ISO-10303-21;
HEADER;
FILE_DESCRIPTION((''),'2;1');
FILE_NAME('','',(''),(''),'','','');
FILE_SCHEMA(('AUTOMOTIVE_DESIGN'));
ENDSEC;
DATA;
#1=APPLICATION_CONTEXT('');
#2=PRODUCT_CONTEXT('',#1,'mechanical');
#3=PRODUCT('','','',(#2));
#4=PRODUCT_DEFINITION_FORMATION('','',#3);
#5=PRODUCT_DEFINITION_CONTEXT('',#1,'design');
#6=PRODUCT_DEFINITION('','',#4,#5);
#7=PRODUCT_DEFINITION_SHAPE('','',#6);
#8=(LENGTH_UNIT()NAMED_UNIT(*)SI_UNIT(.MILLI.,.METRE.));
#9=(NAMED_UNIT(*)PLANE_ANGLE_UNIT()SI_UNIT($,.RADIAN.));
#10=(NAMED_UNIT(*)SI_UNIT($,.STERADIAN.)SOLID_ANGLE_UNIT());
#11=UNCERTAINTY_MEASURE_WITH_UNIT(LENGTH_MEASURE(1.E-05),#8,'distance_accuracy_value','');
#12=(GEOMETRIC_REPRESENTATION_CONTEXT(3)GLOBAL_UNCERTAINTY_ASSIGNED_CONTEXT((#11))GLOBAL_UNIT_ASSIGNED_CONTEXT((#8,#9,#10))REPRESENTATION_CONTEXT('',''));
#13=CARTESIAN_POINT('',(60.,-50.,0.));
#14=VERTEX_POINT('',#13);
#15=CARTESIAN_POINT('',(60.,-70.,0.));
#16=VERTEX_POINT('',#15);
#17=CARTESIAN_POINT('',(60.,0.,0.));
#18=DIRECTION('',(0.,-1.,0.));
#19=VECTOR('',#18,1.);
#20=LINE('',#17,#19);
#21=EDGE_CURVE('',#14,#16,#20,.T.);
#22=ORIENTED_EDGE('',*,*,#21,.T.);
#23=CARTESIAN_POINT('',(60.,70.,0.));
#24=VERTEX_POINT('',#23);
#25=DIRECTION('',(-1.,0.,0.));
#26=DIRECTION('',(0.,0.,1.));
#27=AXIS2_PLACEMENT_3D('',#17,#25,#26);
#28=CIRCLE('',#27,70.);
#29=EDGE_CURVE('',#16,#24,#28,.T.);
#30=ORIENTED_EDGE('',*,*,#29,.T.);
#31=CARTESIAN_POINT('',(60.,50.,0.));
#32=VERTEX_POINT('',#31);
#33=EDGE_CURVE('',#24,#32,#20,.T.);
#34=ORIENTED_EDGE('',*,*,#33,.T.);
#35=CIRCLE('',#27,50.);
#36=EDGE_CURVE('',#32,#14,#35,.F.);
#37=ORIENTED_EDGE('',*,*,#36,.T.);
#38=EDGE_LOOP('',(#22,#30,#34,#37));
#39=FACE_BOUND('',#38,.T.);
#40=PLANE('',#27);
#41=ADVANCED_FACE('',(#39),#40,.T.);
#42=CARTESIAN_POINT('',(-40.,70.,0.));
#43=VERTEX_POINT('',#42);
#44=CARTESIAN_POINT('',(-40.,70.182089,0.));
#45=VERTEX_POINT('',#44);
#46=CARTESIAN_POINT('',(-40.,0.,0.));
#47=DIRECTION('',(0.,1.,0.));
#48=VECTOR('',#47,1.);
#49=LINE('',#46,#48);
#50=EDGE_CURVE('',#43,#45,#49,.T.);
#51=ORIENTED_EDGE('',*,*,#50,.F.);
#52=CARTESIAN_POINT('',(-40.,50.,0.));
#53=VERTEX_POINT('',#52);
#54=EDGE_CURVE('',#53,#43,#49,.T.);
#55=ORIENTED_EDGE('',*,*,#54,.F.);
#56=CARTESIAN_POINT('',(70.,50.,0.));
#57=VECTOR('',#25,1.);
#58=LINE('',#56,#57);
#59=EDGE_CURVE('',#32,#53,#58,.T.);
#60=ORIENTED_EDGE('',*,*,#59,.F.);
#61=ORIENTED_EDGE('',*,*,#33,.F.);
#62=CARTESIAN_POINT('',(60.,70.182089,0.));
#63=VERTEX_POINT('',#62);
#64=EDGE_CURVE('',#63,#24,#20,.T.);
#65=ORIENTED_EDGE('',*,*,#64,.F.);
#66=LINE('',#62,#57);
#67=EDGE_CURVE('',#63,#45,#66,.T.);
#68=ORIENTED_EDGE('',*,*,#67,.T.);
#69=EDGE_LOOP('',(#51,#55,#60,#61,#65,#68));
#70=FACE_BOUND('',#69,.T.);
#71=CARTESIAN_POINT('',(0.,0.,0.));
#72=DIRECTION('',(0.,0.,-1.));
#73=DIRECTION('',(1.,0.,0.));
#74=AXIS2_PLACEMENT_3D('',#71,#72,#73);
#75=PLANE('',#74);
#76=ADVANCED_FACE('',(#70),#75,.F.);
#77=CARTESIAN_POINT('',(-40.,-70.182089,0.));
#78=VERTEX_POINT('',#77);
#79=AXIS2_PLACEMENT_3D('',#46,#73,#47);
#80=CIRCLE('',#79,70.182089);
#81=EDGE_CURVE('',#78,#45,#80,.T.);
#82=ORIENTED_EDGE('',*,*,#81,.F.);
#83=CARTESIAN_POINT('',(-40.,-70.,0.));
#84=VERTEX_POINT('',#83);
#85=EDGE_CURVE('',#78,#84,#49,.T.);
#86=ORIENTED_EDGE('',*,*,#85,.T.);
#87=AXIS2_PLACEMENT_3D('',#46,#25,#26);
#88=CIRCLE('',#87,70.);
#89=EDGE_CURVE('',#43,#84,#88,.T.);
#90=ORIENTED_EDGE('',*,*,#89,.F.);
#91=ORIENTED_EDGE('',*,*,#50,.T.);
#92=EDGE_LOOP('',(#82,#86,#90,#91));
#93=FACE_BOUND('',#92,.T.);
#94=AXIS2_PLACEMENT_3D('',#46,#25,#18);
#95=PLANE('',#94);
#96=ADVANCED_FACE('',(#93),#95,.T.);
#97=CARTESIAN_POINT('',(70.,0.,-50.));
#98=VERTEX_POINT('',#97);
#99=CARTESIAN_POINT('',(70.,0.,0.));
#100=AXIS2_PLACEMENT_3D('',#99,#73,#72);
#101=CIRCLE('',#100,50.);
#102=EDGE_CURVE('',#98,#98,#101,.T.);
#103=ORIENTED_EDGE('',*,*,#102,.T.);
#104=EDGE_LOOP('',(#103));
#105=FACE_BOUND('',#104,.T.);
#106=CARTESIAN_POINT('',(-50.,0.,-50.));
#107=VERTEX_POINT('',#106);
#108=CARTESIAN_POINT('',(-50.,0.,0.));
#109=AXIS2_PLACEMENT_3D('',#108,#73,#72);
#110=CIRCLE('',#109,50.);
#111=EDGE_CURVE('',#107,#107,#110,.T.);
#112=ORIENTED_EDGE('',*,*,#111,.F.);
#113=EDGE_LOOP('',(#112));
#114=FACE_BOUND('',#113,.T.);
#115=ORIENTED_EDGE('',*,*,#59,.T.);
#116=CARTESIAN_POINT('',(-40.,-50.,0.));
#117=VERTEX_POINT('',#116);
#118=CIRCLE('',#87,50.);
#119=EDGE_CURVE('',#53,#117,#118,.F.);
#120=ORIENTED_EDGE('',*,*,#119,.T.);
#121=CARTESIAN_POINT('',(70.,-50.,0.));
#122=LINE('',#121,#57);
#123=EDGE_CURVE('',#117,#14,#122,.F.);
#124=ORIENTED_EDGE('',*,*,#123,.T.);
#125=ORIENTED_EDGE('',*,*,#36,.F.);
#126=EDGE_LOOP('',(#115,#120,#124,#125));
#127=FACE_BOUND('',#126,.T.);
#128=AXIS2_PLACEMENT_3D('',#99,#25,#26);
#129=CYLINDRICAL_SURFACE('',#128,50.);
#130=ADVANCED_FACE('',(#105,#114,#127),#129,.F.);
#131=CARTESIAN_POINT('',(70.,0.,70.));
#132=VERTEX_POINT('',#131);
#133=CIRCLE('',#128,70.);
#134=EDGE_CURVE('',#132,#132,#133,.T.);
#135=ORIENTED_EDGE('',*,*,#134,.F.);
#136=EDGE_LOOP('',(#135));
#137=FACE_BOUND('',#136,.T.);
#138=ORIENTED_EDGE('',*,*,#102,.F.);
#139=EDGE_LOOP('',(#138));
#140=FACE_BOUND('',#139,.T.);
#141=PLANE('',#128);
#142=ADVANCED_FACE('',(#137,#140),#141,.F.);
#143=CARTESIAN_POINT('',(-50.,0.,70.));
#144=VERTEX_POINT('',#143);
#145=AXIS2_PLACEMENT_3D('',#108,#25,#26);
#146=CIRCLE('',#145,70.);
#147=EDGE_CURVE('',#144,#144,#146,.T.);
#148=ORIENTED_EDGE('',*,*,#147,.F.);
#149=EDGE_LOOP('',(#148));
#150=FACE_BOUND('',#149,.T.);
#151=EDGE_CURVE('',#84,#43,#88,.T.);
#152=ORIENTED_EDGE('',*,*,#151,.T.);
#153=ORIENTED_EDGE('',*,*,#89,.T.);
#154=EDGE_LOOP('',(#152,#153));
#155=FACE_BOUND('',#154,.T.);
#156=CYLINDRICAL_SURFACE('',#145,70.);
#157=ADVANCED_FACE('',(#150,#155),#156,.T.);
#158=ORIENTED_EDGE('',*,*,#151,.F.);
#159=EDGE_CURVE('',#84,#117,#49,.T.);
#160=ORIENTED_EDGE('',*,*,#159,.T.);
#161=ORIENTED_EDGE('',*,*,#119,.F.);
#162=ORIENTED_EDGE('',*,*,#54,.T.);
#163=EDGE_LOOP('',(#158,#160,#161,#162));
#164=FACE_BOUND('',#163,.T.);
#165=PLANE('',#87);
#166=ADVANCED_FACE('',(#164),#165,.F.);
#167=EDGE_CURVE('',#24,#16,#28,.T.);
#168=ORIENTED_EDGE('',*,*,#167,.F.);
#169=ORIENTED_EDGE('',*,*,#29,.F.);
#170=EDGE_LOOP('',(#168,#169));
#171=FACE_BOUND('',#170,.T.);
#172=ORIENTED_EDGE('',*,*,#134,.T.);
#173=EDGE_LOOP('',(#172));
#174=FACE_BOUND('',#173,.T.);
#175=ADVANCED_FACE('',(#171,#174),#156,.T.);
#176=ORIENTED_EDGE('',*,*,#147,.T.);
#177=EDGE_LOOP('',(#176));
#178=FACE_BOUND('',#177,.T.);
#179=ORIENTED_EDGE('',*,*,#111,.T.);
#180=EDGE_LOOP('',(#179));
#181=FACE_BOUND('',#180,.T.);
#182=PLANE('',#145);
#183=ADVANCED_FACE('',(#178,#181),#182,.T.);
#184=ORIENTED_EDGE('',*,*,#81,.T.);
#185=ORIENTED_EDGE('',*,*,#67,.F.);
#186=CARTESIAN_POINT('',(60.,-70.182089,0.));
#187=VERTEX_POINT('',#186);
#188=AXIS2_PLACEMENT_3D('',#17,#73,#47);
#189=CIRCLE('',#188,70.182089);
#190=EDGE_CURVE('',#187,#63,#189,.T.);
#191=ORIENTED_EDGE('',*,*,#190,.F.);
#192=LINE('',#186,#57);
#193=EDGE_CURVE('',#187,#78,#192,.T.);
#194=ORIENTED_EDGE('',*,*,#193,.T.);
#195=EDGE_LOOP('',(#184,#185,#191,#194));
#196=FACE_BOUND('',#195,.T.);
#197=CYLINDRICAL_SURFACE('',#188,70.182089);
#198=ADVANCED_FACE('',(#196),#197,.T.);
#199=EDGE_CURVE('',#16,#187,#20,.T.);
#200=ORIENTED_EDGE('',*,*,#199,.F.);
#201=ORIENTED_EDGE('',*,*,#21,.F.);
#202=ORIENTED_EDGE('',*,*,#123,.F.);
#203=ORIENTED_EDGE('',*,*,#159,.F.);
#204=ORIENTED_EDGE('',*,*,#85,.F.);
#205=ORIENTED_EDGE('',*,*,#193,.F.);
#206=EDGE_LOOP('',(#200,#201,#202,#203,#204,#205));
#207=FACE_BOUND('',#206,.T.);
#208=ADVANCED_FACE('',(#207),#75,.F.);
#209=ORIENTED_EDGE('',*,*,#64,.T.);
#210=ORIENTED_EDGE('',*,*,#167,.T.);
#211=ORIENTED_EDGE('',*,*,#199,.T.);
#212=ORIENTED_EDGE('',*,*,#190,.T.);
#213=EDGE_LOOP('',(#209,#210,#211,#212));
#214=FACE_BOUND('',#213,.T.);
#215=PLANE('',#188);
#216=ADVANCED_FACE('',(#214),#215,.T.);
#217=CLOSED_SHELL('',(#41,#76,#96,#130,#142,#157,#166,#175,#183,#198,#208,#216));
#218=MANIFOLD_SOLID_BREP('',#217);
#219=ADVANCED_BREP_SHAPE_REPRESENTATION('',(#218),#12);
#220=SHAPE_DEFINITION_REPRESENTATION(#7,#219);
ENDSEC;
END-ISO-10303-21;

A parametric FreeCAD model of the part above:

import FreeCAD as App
import Part
import Sketcher
Q = App.Units.Quantity


def add_polygon(sketch, points):
    """Adds a closed chain of lines whose ends are joined by coincident constraints."""
    first, n = sketch.GeometryCount, len(points)
    for a, b in zip(points, points[1:] + points[:1]):
        sketch.addGeometry(Part.LineSegment(App.Vector(*a, 0), App.Vector(*b, 0)), False)
    for i in range(n):
        sketch.addConstraint(Sketcher.Constraint("Coincident", first + i, 2, first + (i + 1) % n, 1))

doc = App.newDocument("Part")
body = doc.addObject("PartDesign::Body", "Body")

sketch1 = body.newObject("Sketcher::SketchObject", "Sketch")
sketch1.AttachmentSupport = (doc.getObject("XY_Plane"), [""])
sketch1.MapMode = "FlatFace"
add_polygon(sketch1, [(-50, 70), (-50, 0), (-40, 0), (-40, 70)])
sketch1.addConstraint(Sketcher.Constraint("Vertical", 0))
sketch1.addConstraint(Sketcher.Constraint("Horizontal", 1))
sketch1.addConstraint(Sketcher.Constraint("Vertical", 2))
sketch1.addConstraint(Sketcher.Constraint("Horizontal", 3))
sketch1.addConstraint(Sketcher.Constraint("PointOnObject", 0, 2, -1))
sketch1.addConstraint(Sketcher.Constraint("DistanceX", 1, 1, 1, 2, Q("10 mm")))
sketch1.addConstraint(Sketcher.Constraint("DistanceY", 0, 2, 0, 1, Q("70 mm")))
sketch1.addConstraint(Sketcher.Constraint("DistanceX", 0, 2, -1, 1, Q("50 mm")))
revolution = body.newObject("PartDesign::Revolution", "Revolution")
revolution.Profile = sketch1
revolution.ReferenceAxis = (sketch1, ["H_Axis"])
revolution.Angle = 360
body2 = doc.addObject("PartDesign::Body", "Body001")

sketch2 = body2.newObject("Sketcher::SketchObject", "Sketch001")
sketch2.AttachmentSupport = (doc.getObject("XY_Plane001"), [""])
sketch2.MapMode = "FlatFace"
add_polygon(sketch2, [(60, 70), (60, 0), (70, 0), (70, 70)])
sketch2.addConstraint(Sketcher.Constraint("Vertical", 0))
sketch2.addConstraint(Sketcher.Constraint("Horizontal", 1))
sketch2.addConstraint(Sketcher.Constraint("Vertical", 2))
sketch2.addConstraint(Sketcher.Constraint("Horizontal", 3))
sketch2.addConstraint(Sketcher.Constraint("PointOnObject", 0, 2, -1))
sketch2.addConstraint(Sketcher.Constraint("DistanceX", 1, 1, 1, 2, Q("10 mm")))
sketch2.addConstraint(Sketcher.Constraint("DistanceY", 0, 2, 0, 1, Q("70 mm")))
sketch2.addConstraint(Sketcher.Constraint("DistanceX", -1, 1, 0, 2, Q("60 mm")))
revolution2 = body2.newObject("PartDesign::Revolution", "Revolution001")
revolution2.Profile = sketch2
revolution2.ReferenceAxis = (sketch2, ["H_Axis"])
revolution2.Angle = 360
body.AllowCompound = True
doc.recompute()

boolean = body.newObject("PartDesign::Boolean", "Boolean")
boolean.Type = "Fuse"
boolean.addObjects([body2])

sketch3 = body.newObject("Sketcher::SketchObject", "Sketch002")
sketch3.AttachmentSupport = (doc.getObject("XY_Plane"), [""])
sketch3.MapMode = "FlatFace"
add_polygon(sketch3, [(-40, 70), (-40, 0), (60, 0), (60, 70)])
sketch3.addConstraint(Sketcher.Constraint("Vertical", 0))
sketch3.addConstraint(Sketcher.Constraint("Horizontal", 1))
sketch3.addConstraint(Sketcher.Constraint("Vertical", 2))
sketch3.addConstraint(Sketcher.Constraint("Horizontal", 3))
sketch3.addConstraint(Sketcher.Constraint("PointOnObject", 0, 2, -1))
sketch3.addConstraint(Sketcher.Constraint("DistanceX", 1, 1, 1, 2, Q("100 mm")))
sketch3.addConstraint(Sketcher.Constraint("DistanceX", 0, 2, -1, 1, Q("40 mm")))
sketch3.addConstraint(Sketcher.Constraint("DistanceY", 0, 2, 0, 1, Q("70.182089 mm")))
revolution3 = body.newObject("PartDesign::Revolution", "Revolution002")
revolution3.Profile = sketch3
revolution3.ReferenceAxis = (sketch3, ["H_Axis"])
revolution3.Angle = 180
revolution3.Reversed = True

sketch4 = body.newObject("Sketcher::SketchObject", "Sketch003")
sketch4.AttachmentSupport = (doc.getObject("YZ_Plane"), [""])
sketch4.MapMode = "FlatFace"
sketch4.AttachmentOffset = App.Placement(App.Vector(0, 0, -40), App.Rotation())
sketch4.addGeometry(Part.Circle(App.Vector(0, 0, 0), App.Vector(0, 0, 1), 50), False)
sketch4.addConstraint(Sketcher.Constraint("Coincident", 0, 3, -1, 1))
sketch4.addConstraint(Sketcher.Constraint("Diameter", 0, Q("100 mm")))
pocket1 = body.newObject("PartDesign::Pocket", "Pocket")
pocket1.Profile = sketch4
pocket1.Type = "ThroughAll"
pocket1.Midplane = True

doc.recompute()
